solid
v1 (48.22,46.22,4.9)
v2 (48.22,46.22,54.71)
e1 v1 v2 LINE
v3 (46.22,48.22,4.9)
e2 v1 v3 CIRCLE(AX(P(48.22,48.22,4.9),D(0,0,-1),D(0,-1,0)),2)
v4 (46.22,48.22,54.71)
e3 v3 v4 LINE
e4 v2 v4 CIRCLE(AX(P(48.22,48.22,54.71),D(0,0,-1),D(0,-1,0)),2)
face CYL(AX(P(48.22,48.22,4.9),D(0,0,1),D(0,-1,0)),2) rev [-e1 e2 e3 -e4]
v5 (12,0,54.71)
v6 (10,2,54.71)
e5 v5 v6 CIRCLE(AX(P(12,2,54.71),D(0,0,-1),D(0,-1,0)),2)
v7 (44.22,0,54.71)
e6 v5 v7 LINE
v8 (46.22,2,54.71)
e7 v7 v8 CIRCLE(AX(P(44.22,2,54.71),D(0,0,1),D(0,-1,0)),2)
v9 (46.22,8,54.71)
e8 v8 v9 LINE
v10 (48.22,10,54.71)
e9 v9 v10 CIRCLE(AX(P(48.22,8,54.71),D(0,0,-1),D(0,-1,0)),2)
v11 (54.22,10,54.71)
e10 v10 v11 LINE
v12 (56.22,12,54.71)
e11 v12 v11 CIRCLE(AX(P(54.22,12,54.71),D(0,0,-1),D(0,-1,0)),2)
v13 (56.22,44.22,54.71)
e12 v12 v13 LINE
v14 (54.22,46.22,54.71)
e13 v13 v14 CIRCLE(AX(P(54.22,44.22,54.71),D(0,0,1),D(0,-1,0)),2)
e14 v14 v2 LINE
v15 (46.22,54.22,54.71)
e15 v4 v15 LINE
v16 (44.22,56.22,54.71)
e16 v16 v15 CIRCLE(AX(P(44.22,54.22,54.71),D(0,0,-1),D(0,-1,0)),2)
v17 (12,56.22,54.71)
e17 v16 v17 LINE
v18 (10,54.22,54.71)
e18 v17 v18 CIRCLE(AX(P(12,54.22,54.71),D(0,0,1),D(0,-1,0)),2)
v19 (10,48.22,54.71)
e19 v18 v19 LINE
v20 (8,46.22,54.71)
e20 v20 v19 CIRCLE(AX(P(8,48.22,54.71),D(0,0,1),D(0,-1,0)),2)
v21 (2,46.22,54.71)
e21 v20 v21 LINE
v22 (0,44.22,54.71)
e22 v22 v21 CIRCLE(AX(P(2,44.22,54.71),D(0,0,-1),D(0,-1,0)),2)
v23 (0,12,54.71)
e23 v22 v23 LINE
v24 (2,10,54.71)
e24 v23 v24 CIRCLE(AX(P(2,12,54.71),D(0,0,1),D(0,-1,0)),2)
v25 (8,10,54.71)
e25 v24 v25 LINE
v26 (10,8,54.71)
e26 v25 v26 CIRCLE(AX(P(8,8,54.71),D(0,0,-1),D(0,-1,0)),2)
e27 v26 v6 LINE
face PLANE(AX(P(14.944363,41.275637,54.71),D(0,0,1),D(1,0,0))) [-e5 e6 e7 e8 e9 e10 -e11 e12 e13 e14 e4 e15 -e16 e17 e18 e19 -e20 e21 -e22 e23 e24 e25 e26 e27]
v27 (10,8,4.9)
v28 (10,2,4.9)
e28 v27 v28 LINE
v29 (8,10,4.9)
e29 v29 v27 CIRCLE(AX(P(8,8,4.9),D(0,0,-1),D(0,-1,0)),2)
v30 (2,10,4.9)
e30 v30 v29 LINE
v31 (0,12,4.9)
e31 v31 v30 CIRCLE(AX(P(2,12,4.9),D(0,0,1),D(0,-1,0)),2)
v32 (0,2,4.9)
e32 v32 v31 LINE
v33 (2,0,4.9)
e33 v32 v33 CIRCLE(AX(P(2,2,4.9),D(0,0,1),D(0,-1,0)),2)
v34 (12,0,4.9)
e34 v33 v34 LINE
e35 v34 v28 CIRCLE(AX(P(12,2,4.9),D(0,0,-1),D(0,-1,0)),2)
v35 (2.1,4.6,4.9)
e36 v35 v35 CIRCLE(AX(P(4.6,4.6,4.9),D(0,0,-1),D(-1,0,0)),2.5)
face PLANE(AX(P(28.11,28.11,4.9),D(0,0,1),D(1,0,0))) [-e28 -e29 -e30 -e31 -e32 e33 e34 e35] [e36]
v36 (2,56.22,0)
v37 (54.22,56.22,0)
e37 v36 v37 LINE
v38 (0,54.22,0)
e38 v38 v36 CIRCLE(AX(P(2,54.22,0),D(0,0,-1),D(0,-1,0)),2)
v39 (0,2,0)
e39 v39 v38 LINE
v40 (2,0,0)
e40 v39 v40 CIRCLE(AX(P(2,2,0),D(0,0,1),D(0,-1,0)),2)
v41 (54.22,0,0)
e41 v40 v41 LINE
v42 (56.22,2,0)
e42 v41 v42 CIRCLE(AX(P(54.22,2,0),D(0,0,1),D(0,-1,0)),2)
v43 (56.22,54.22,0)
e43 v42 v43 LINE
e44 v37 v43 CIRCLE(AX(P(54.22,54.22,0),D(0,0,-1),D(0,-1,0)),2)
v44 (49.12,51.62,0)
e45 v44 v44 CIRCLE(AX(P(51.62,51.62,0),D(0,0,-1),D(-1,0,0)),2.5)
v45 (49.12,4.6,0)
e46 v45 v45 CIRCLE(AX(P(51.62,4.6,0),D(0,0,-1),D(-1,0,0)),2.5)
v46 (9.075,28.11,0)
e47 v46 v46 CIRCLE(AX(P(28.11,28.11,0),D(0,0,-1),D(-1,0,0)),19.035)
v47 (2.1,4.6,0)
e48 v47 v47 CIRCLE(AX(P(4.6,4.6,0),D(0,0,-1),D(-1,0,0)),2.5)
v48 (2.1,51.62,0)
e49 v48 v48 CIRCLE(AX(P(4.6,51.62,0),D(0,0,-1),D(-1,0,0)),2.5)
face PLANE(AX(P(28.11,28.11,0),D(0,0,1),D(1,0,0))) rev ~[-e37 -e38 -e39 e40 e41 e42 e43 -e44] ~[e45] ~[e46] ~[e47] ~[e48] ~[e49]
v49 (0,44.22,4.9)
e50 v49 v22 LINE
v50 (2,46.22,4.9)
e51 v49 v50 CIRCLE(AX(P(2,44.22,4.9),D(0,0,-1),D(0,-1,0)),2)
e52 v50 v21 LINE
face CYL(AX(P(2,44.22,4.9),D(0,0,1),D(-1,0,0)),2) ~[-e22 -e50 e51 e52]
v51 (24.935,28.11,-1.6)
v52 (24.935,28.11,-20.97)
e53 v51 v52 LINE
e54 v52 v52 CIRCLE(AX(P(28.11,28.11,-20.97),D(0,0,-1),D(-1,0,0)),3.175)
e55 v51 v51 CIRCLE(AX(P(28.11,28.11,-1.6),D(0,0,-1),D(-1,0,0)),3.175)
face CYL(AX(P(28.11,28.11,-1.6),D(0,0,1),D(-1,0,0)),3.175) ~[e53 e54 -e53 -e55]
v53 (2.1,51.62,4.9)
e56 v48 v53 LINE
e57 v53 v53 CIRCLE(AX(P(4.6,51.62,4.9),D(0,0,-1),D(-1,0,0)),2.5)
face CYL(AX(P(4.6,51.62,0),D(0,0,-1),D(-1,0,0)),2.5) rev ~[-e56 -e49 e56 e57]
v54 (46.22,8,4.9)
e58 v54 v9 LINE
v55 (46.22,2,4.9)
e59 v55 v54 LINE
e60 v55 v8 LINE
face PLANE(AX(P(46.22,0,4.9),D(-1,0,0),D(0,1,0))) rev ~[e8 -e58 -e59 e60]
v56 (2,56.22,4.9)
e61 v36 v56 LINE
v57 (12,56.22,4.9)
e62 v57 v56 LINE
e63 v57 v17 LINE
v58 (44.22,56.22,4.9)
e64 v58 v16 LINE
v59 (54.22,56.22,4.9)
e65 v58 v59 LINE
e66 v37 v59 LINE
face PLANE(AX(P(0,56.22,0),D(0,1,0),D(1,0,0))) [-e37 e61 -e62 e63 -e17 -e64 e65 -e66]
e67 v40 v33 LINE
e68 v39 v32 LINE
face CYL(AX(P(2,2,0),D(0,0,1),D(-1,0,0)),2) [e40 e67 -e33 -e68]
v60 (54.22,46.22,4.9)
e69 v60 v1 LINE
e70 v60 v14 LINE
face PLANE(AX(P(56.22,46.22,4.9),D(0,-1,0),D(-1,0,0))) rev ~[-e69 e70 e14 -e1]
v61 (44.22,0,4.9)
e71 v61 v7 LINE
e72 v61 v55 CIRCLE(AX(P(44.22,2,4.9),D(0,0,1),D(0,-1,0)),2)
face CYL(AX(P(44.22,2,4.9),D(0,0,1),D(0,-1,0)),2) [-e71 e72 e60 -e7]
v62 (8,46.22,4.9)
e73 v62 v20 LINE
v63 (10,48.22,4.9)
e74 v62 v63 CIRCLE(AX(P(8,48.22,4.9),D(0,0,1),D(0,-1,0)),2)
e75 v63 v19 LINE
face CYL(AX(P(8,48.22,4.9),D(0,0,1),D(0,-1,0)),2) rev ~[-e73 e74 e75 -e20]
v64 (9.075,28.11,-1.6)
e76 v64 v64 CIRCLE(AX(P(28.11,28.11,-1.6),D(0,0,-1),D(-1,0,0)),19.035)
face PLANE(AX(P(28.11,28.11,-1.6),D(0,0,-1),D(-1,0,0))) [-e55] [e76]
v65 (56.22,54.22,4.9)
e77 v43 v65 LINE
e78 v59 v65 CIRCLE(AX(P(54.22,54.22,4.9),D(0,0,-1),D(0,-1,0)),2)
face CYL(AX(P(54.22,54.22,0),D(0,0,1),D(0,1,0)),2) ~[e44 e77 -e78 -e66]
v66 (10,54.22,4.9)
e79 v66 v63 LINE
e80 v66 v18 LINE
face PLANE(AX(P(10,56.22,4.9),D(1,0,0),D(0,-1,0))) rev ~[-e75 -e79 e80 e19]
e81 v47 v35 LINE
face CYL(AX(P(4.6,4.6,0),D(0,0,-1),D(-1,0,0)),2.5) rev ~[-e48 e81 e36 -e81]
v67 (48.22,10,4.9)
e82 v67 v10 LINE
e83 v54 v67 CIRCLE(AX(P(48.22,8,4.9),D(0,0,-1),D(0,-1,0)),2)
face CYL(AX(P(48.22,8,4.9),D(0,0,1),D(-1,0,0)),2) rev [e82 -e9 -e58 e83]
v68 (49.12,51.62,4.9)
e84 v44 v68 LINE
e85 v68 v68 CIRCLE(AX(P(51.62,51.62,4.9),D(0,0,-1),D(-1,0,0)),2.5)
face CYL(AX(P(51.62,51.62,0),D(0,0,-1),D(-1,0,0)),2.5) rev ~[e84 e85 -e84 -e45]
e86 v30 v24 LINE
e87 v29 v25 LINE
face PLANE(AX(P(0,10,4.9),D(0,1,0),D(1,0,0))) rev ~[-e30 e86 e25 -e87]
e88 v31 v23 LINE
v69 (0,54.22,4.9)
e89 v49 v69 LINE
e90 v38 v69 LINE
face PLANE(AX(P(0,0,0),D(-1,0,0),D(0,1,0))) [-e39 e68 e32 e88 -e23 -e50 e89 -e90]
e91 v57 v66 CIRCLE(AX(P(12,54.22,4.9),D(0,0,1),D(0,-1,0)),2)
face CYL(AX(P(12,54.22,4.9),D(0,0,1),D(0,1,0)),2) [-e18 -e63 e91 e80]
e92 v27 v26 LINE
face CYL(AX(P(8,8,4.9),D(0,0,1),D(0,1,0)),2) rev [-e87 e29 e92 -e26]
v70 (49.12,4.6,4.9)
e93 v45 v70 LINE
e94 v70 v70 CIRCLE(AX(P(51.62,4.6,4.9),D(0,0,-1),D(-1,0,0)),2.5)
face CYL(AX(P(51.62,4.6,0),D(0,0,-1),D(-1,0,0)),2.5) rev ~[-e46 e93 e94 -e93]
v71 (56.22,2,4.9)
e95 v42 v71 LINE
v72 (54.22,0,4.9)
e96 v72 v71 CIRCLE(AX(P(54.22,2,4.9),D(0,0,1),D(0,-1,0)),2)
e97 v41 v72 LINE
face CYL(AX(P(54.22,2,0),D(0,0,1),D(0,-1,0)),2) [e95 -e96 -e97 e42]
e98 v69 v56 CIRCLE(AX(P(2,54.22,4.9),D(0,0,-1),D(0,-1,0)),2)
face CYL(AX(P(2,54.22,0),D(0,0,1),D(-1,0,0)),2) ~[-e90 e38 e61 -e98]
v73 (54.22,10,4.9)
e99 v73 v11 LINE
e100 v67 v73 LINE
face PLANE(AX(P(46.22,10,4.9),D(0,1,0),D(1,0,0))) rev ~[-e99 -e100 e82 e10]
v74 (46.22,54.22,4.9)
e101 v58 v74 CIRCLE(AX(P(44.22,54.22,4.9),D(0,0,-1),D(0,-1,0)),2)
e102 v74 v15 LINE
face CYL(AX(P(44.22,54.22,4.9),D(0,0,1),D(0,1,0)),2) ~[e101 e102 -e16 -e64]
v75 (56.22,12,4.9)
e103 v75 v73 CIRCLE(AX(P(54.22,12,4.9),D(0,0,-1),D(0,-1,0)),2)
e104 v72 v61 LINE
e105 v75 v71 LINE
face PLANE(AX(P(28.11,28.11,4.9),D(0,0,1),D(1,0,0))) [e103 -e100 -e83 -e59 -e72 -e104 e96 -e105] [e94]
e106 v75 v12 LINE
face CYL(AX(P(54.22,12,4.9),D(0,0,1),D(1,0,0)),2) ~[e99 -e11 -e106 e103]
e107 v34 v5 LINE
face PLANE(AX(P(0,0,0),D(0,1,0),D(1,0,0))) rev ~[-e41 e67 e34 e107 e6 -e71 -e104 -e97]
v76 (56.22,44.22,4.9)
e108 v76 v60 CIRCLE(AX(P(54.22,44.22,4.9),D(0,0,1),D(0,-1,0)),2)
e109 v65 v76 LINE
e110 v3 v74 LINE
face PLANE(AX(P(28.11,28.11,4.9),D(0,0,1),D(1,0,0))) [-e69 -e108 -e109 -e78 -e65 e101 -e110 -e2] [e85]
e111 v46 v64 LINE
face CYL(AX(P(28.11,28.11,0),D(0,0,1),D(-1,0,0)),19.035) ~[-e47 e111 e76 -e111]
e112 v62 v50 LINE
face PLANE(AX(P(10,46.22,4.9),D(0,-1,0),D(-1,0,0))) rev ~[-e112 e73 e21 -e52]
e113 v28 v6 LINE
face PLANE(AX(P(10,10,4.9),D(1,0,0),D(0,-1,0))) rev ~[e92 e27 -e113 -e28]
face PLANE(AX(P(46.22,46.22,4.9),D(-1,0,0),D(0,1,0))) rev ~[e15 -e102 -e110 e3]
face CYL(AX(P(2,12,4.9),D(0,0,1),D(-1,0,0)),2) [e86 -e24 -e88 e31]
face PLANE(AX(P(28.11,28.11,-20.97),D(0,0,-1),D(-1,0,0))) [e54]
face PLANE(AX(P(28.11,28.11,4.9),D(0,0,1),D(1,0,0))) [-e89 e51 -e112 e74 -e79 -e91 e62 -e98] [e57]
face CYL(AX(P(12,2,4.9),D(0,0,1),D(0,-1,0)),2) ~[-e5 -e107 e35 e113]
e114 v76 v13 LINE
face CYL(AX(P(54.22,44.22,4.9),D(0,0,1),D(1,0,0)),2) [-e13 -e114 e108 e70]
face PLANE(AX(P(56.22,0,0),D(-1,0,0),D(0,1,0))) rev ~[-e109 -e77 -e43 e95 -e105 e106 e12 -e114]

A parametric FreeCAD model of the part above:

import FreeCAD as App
import Part
import Sketcher

V = App.Vector


def edges_at(feature, points):
    """Names of the edges that pass closest to the given points."""
    edges = feature.Shape.Edges
    near = lambda p: min(range(len(edges)), key=lambda i: edges[i].distToShape(Part.Vertex(*p))[0])
    return sorted({f"Edge{near(p) + 1}" for p in points})

doc = App.newDocument("Part")
body = doc.addObject("PartDesign::Body", "Body")

# Sketch on XY plane
sketch1 = doc.addObject("Sketcher::SketchObject", "Sketch")
body.addObject(sketch1)
sketch1.AttachmentSupport = (doc.XY_Plane, [""])
sketch1.MapMode = "FlatFace"
sketch1.addGeometry(Part.LineSegment(V(0, 56.22, 0), V(0, 0, 0)), False)
sketch1.addGeometry(Part.LineSegment(V(0, 0, 0), V(56.22, 0, 0)), False)
sketch1.addGeometry(Part.LineSegment(V(56.22, 0, 0), V(56.22, 56.22, 0)), False)
sketch1.addGeometry(Part.LineSegment(V(56.22, 56.22, 0), V(0, 56.22, 0)), False)
sketch1.addConstraint(Sketcher.Constraint("Coincident", 0, 2, 1, 1))
sketch1.addConstraint(Sketcher.Constraint("Coincident", 1, 2, 2, 1))
sketch1.addConstraint(Sketcher.Constraint("Coincident", 2, 2, 3, 1))
sketch1.addConstraint(Sketcher.Constraint("Coincident", 3, 2, 0, 1))
sketch1.addConstraint(Sketcher.Constraint("Vertical", 0))
sketch1.addConstraint(Sketcher.Constraint("Horizontal", 1))
sketch1.addConstraint(Sketcher.Constraint("Vertical", 2))
sketch1.addConstraint(Sketcher.Constraint("Horizontal", 3))
sketch1.addConstraint(Sketcher.Constraint("Coincident", 0, 2, -1, 1))
sketch1.addConstraint(Sketcher.Constraint("Equal", 3, 0))
sketch1.addConstraint(Sketcher.Constraint("DistanceX", 1, 1, 1, 2, 56.22))
pad1 = doc.addObject("PartDesign::Pad", "Pad")
body.addObject(pad1)
pad1.Profile = sketch1
pad1.Length = 4.9

# Sketch on XY plane
sketch2 = doc.addObject("Sketcher::SketchObject", "Sketch001")
body.addObject(sketch2)
sketch2.AttachmentSupport = (doc.XY_Plane, [""])
sketch2.MapMode = "FlatFace"
sketch2.addGeometry(Part.Circle(V(4.6, 51.62, 0), V(0, 0, 1), 2.5), False)
sketch2.addGeometry(Part.Circle(V(51.62, 51.62, 0), V(0, 0, 1), 2.5), False)
sketch2.addGeometry(Part.Circle(V(51.62, 4.6, 0), V(0, 0, 1), 2.5), False)
sketch2.addGeometry(Part.Circle(V(4.6, 4.6, 0), V(0, 0, 1), 2.5), False)
sketch2.addConstraint(Sketcher.Constraint("Equal", 0, 1))
sketch2.addConstraint(Sketcher.Constraint("Equal", 1, 2))
sketch2.addConstraint(Sketcher.Constraint("Equal", 2, 3))
sketch2.addConstraint(Sketcher.Constraint("Horizontal", 0, 3, 1, 3))
sketch2.addConstraint(Sketcher.Constraint("Horizontal", 2, 3, 3, 3))
sketch2.addConstraint(Sketcher.Constraint("Vertical", 1, 3, 2, 3))
sketch2.addConstraint(Sketcher.Constraint("Vertical", 0, 3, 3, 3))
sketch2.addConstraint(Sketcher.Constraint("Diameter", 0, 5.0))
sketch2.addConstraint(Sketcher.Constraint("DistanceX", -1, 1, 0, 3, 4.6))
sketch2.addConstraint(Sketcher.Constraint("DistanceY", -1, 1, 2, 3, 4.6))
sketch2.addConstraint(Sketcher.Constraint("DistanceY", -1, 1, 0, 3, 51.62))
sketch2.addConstraint(Sketcher.Constraint("DistanceX", -1, 1, 1, 3, 51.62))
pocket1 = doc.addObject("PartDesign::Pocket", "Pocket")
body.addObject(pocket1)
pocket1.Profile = sketch2
pocket1.Type = "ThroughAll"
pocket1.Reversed = True
doc.recompute()

fillet = doc.addObject("PartDesign::Fillet", "Fillet")
body.addObject(fillet)
fillet.Base = (pocket1, edges_at(pocket1, [
    (0, 56.22, 2.45),
    (56.22, 56.22, 2.45),
    (56.22, 0, 2.45),
    (0, 0, 2.45),
]))
fillet.Radius = 2

# Sketch on XY plane
sketch3 = doc.addObject("Sketcher::SketchObject", "Sketch002")
body.addObject(sketch3)
sketch3.AttachmentSupport = (doc.XY_Plane, [""])
sketch3.MapMode = "FlatFace"
sketch3.AttachmentOffset = App.Placement(V(0, 0, 4.9), App.Rotation())
sketch3.addGeometry(Part.LineSegment(V(0, 46.22, 0), V(0, 10, 0)), False)
sketch3.addGeometry(Part.LineSegment(V(0, 10, 0), V(10, 10, 0)), False)
sketch3.addGeometry(Part.LineSegment(V(10, 10, 0), V(10, 0, 0)), False)
sketch3.addGeometry(Part.LineSegment(V(10, 0, 0), V(46.22, 0, 0)), False)
sketch3.addGeometry(Part.LineSegment(V(46.22, 0, 0), V(46.22, 10, 0)), False)
sketch3.addGeometry(Part.LineSegment(V(46.22, 10, 0), V(56.22, 10, 0)), False)
sketch3.addGeometry(Part.LineSegment(V(56.22, 10, 0), V(56.22, 46.22, 0)), False)
sketch3.addGeometry(Part.LineSegment(V(56.22, 46.22, 0), V(46.22, 46.22, 0)), False)
sketch3.addGeometry(Part.LineSegment(V(46.22, 46.22, 0), V(46.22, 56.22, 0)), False)
sketch3.addGeometry(Part.LineSegment(V(46.22, 56.22, 0), V(10, 56.22, 0)), False)
sketch3.addGeometry(Part.LineSegment(V(10, 56.22, 0), V(10, 46.22, 0)), False)
sketch3.addGeometry(Part.LineSegment(V(10, 46.22, 0), V(0, 46.22, 0)), False)
sketch3.addConstraint(Sketcher.Constraint("Coincident", 0, 2, 1, 1))
sketch3.addConstraint(Sketcher.Constraint("Coincident", 1, 2, 2, 1))
sketch3.addConstraint(Sketcher.Constraint("Coincident", 2, 2, 3, 1))
sketch3.addConstraint(Sketcher.Constraint("Coincident", 3, 2, 4, 1))
sketch3.addConstraint(Sketcher.Constraint("Coincident", 4, 2, 5, 1))
sketch3.addConstraint(Sketcher.Constraint("Coincident", 5, 2, 6, 1))
sketch3.addConstraint(Sketcher.Constraint("Coincident", 6, 2, 7, 1))
sketch3.addConstraint(Sketcher.Constraint("Coincident", 7, 2, 8, 1))
sketch3.addConstraint(Sketcher.Constraint("Coincident", 8, 2, 9, 1))
sketch3.addConstraint(Sketcher.Constraint("Coincident", 9, 2, 10, 1))
sketch3.addConstraint(Sketcher.Constraint("Coincident", 10, 2, 11, 1))
sketch3.addConstraint(Sketcher.Constraint("Coincident", 11, 2, 0, 1))
sketch3.addConstraint(Sketcher.Constraint("Vertical", 0))
sketch3.addConstraint(Sketcher.Constraint("Horizontal", 1))
sketch3.addConstraint(Sketcher.Constraint("Vertical", 2))
sketch3.addConstraint(Sketcher.Constraint("Horizontal", 3))
sketch3.addConstraint(Sketcher.Constraint("Vertical", 4))
sketch3.addConstraint(Sketcher.Constraint("Horizontal", 5))
sketch3.addConstraint(Sketcher.Constraint("Vertical", 6))
sketch3.addConstraint(Sketcher.Constraint("Horizontal", 7))
sketch3.addConstraint(Sketcher.Constraint("Vertical", 8))
sketch3.addConstraint(Sketcher.Constraint("Horizontal", 9))
sketch3.addConstraint(Sketcher.Constraint("Vertical", 10))
sketch3.addConstraint(Sketcher.Constraint("Horizontal", 11))
sketch3.addConstraint(Sketcher.Constraint("PointOnObject", 0, 2, -2))
sketch3.addConstraint(Sketcher.Constraint("PointOnObject", 2, 2, -1))
sketch3.addConstraint(Sketcher.Constraint("Horizontal", 1, 2, 4, 2))
sketch3.addConstraint(Sketcher.Constraint("Horizontal", 7, 2, 10, 2))
sketch3.addConstraint(Sketcher.Constraint("Vertical", 4, 2, 7, 2))
sketch3.addConstraint(Sketcher.Constraint("Vertical", 2, 2, 9, 2))
sketch3.addConstraint(Sketcher.Constraint("Equal", 1, 5))
sketch3.addConstraint(Sketcher.Constraint("Equal", 9, 0))
sketch3.addConstraint(Sketcher.Constraint("Equal", 11, 2))
sketch3.addConstraint(Sketcher.Constraint("Equal", 4, 8))
sketch3.addConstraint(Sketcher.Constraint("DistanceX", 1, 1, 1, 2, 10.0))
sketch3.addConstraint(Sketcher.Constraint("DistanceX", 3, 1, 3, 2, 36.22))
pad2 = doc.addObject("PartDesign::Pad", "Pad001")
body.addObject(pad2)
pad2.Profile = sketch3
pad2.Length = 49.81
doc.recompute()

fillet2 = doc.addObject("PartDesign::Fillet", "Fillet001")
body.addObject(fillet2)
fillet2.Base = (pad2, edges_at(pad2, [
    (10, 0, 29.805),
    (46.22, 0, 29.805),
    (46.22, 10, 29.805),
    (56.22, 10, 29.805),
    (56.22, 46.22, 29.805),
    (46.22, 46.22, 29.805),
    (46.22, 56.22, 29.805),
    (10, 56.22, 29.805),
    (10, 46.22, 29.805),
    (0, 46.22, 29.805),
    (0, 10, 29.805),
    (10, 10, 29.805),
]))
fillet2.Radius = 2

# Sketch on XY plane
sketch4 = doc.addObject("Sketcher::SketchObject", "Sketch003")
body.addObject(sketch4)
sketch4.AttachmentSupport = (doc.XY_Plane, [""])
sketch4.MapMode = "FlatFace"
sketch4.addGeometry(Part.Circle(V(28.11, 28.11, 0), V(0, 0, 1), 19.035), False)
sketch4.addConstraint(Sketcher.Constraint("Diameter", 0, 38.07))
sketch4.addConstraint(Sketcher.Constraint("DistanceX", -1, 1, 0, 3, 28.11))
sketch4.addConstraint(Sketcher.Constraint("DistanceY", -1, 1, 0, 3, 28.11))
pad3 = doc.addObject("PartDesign::Pad", "Pad002")
body.addObject(pad3)
pad3.Profile = sketch4
pad3.Length = 1.6
pad3.Reversed = True

# Sketch on XY plane
sketch5 = doc.addObject("Sketcher::SketchObject", "Sketch004")
body.addObject(sketch5)
sketch5.AttachmentSupport = (doc.XY_Plane, [""])
sketch5.MapMode = "FlatFace"
sketch5.AttachmentOffset = App.Placement(V(0, 0, -1.6), App.Rotation())
sketch5.addGeometry(Part.Circle(V(28.11, 28.11, 0), V(0, 0, 1), 3.175), False)
sketch5.addConstraint(Sketcher.Constraint("Diameter", 0, 6.35))
sketch5.addConstraint(Sketcher.Constraint("DistanceX", -1, 1, 0, 3, 28.11))
sketch5.addConstraint(Sketcher.Constraint("DistanceY", -1, 1, 0, 3, 28.11))
pad4 = doc.addObject("PartDesign::Pad", "Pad003")
body.addObject(pad4)
pad4.Profile = sketch5
pad4.Length = 19.37
pad4.Reversed = True

doc.recompute()
